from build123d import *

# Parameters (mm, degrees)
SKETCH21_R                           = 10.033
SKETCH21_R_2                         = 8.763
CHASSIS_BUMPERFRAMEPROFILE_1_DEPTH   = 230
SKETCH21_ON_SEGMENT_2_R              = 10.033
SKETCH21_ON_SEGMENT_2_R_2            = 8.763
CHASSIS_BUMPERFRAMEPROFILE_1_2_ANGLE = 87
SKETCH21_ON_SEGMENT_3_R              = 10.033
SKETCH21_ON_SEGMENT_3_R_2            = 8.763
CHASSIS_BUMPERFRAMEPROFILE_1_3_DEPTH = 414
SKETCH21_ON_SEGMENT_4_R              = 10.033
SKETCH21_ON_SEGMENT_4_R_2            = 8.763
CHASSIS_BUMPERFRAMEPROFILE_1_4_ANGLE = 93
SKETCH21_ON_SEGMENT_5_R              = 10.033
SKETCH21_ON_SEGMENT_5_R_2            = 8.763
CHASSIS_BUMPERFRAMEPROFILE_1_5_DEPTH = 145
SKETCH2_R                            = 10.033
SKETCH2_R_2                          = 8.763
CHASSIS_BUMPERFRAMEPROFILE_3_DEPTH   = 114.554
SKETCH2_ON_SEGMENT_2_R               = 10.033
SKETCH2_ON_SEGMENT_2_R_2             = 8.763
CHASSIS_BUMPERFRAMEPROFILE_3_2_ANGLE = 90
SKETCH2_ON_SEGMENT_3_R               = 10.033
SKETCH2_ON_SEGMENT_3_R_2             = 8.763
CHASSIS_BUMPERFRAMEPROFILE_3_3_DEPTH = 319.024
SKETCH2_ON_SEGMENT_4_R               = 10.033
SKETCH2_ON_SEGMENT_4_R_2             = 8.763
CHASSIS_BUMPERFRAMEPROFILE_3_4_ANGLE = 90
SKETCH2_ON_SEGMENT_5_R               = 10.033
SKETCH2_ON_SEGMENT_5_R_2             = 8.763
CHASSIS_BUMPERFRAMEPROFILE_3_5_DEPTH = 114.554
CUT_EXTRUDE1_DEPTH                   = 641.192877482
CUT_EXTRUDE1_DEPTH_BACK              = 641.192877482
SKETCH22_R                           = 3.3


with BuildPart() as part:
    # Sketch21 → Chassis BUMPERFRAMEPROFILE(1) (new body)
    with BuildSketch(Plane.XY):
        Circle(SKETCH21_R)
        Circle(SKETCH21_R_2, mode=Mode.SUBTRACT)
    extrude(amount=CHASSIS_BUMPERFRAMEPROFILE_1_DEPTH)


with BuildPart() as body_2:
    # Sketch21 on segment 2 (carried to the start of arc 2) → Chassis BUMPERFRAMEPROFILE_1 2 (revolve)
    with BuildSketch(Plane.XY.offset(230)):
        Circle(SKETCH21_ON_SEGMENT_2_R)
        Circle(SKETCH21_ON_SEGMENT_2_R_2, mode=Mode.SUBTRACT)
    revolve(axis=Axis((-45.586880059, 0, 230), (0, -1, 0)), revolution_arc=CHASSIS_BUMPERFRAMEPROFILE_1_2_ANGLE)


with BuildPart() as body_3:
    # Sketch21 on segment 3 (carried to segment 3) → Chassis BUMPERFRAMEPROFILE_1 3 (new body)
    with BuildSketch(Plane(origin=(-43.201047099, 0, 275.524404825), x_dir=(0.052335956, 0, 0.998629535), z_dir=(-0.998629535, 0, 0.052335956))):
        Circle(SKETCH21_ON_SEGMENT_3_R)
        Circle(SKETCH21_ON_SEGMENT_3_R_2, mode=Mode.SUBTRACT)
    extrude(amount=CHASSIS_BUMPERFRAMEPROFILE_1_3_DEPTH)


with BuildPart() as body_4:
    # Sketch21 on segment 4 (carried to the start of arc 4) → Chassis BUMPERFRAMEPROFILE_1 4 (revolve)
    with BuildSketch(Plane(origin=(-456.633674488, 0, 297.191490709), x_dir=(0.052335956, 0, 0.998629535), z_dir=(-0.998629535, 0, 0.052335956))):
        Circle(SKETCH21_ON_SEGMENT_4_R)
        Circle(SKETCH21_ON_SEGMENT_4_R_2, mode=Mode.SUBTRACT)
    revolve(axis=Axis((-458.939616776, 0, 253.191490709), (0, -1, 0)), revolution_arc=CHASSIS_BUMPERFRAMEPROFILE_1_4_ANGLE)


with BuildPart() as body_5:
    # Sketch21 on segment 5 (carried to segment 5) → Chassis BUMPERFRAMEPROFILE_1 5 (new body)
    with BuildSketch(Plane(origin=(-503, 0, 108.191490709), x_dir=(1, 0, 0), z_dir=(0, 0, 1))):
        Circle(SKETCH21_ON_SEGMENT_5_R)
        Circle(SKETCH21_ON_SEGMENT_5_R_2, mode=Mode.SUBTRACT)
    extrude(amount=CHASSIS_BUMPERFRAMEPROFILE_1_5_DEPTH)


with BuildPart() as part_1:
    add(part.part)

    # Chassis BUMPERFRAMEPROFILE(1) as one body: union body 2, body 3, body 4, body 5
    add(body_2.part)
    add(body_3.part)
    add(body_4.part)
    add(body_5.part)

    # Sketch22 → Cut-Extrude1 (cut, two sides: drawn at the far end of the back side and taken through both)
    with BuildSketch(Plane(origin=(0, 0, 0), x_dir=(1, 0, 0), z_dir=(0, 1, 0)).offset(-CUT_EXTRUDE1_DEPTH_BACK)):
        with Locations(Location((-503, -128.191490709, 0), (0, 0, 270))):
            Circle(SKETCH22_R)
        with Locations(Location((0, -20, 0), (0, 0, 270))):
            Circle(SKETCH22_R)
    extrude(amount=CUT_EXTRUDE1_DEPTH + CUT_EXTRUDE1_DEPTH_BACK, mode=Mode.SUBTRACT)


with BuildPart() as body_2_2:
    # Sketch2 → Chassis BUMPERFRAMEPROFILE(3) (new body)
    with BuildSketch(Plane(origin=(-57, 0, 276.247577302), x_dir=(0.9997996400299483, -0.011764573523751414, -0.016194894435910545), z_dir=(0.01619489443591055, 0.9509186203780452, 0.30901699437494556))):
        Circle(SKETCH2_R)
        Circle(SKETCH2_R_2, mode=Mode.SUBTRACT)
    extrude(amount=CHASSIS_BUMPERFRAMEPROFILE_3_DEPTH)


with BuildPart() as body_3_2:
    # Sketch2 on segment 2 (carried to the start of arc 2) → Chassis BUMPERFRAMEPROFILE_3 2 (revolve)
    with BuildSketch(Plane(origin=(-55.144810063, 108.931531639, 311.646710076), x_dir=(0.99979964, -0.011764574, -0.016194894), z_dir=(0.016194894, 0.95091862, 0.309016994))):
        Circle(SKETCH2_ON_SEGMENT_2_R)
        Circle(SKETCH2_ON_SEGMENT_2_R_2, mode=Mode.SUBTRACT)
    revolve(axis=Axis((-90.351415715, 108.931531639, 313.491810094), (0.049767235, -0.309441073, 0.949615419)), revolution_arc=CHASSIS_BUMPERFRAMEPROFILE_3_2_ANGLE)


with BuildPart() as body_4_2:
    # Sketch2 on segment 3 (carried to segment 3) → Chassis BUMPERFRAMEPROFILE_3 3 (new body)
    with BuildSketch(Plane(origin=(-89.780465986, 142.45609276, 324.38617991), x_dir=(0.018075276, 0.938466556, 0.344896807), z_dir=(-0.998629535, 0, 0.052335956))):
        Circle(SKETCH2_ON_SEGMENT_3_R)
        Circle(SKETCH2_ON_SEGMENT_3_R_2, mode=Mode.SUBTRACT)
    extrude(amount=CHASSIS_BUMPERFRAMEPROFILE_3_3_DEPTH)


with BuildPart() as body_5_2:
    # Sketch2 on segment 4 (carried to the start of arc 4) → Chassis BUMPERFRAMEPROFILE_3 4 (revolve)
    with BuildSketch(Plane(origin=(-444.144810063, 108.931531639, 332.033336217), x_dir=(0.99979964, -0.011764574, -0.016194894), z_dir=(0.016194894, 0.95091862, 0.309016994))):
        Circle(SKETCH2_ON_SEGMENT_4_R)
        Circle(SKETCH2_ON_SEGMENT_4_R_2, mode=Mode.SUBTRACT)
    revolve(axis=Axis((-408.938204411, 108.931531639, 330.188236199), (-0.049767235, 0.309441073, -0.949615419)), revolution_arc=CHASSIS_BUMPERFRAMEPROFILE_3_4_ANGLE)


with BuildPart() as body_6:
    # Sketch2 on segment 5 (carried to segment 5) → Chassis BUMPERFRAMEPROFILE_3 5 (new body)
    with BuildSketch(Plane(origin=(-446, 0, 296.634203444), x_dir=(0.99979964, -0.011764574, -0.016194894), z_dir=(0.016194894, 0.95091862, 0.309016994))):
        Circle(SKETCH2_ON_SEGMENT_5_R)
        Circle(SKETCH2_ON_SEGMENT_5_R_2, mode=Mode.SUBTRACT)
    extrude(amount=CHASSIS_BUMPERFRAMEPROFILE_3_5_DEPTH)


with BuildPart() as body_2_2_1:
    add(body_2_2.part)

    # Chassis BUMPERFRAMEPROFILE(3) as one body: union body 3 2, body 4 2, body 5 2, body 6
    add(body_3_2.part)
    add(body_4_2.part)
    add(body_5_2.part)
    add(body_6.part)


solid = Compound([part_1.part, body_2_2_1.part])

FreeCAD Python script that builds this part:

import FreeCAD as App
import Part
import Sketcher

V = App.Vector
Q = App.Units.Quantity

doc = App.newDocument("Part")
body = doc.addObject("PartDesign::Body", "Body")

# Sketch on XY plane
sketch1 = body.newObject("Sketcher::SketchObject", "Sketch")
sketch1.AttachmentSupport = (doc.getObject("XY_Plane"), [""])
sketch1.MapMode = "FlatFace"
sketch1.addGeometry(Part.Circle(V(0, 0, 0), V(0, 0, 1), 10), False)
sketch1.addGeometry(Part.Circle(V(0, 0, 0), V(0, 0, 1), 9), False)
sketch1.addConstraint(Sketcher.Constraint("Coincident", 0, 3, -1, 1))
sketch1.addConstraint(Sketcher.Constraint("Coincident", 1, 3, -1, 1))
sketch1.addConstraint(Sketcher.Constraint("Diameter", 0, Q("20.066 mm")))
sketch1.addConstraint(Sketcher.Constraint("Diameter", 1, Q("17.526 mm")))
pad1 = body.newObject("PartDesign::Pad", "Pad")
pad1.Profile = sketch1
pad1.Length = 230
body2 = doc.addObject("PartDesign::Body", "Body001")

# Sketch on XY plane
sketch2 = body2.newObject("Sketcher::SketchObject", "Sketch001")
sketch2.AttachmentSupport = (doc.getObject("XY_Plane001"), [""])
sketch2.MapMode = "FlatFace"
sketch2.AttachmentOffset = App.Placement(V(0, 0, 230), App.Rotation())
sketch2.addGeometry(Part.Circle(V(0, 0, 0), V(0, 0, 1), 10), False)
sketch2.addGeometry(Part.Circle(V(0, 0, 0), V(0, 0, 1), 9), False)
sketch2.addGeometry(Part.LineSegment(V(-46, 0, 0), V(-46, -10, 0)), True)  # axis
sketch2.addConstraint(Sketcher.Constraint("Vertical", 2))
sketch2.addConstraint(Sketcher.Constraint("Coincident", 0, 3, -1, 1))
sketch2.addConstraint(Sketcher.Constraint("Coincident", 1, 3, -1, 1))
sketch2.addConstraint(Sketcher.Constraint("PointOnObject", 2, 1, -1))
sketch2.addConstraint(Sketcher.Constraint("DistanceY", 2, 2, 2, 1, Q("10 mm")))
sketch2.addConstraint(Sketcher.Constraint("Diameter", 0, Q("20.066 mm")))
sketch2.addConstraint(Sketcher.Constraint("Diameter", 1, Q("17.526 mm")))
sketch2.addConstraint(Sketcher.Constraint("DistanceX", 2, 1, -1, 1, Q("45.58688 mm")))
revolution = body2.newObject("PartDesign::Revolution", "Revolution")
revolution.Profile = sketch2
revolution.ReferenceAxis = (sketch2, ["Axis0"])
revolution.Angle = 87
body3 = doc.addObject("PartDesign::Body", "Body002")

# Sketch on an angled plane
sketch3 = body3.newObject("Sketcher::SketchObject", "Sketch002")
sketch3.Placement = App.Placement(V(-43.201047, 0, 275.524405), App.Rotation(V(0.052335956, 0, 0.998629535), V(0, 1, 0), V(-0.998629535, 0, 0.052335956), "ZXY"))
sketch3.addGeometry(Part.Circle(V(0, 0, 0), V(0, 0, 1), 10), False)
sketch3.addGeometry(Part.Circle(V(0, 0, 0), V(0, 0, 1), 9), False)
sketch3.addConstraint(Sketcher.Constraint("Coincident", 0, 3, -1, 1))
sketch3.addConstraint(Sketcher.Constraint("Coincident", 1, 3, -1, 1))
sketch3.addConstraint(Sketcher.Constraint("Diameter", 0, Q("20.066 mm")))
sketch3.addConstraint(Sketcher.Constraint("Diameter", 1, Q("17.526 mm")))
pad2 = body3.newObject("PartDesign::Pad", "Pad001")
pad2.Profile = sketch3
pad2.Length = 414
body4 = doc.addObject("PartDesign::Body", "Body003")

# Sketch on an angled plane
sketch4 = body4.newObject("Sketcher::SketchObject", "Sketch003")
sketch4.Placement = App.Placement(V(-456.633674, 0, 297.191491), App.Rotation(V(0.052335956, 0, 0.998629535), V(0, 1, 0), V(-0.998629535, 0, 0.052335956), "ZXY"))
sketch4.addGeometry(Part.Circle(V(0, 0, 0), V(0, 0, 1), 10), False)
sketch4.addGeometry(Part.Circle(V(0, 0, 0), V(0, 0, 1), 9), False)
sketch4.addGeometry(Part.LineSegment(V(-44, 0, 0), V(-44, -10, 0)), True)  # axis
sketch4.addConstraint(Sketcher.Constraint("Vertical", 2))
sketch4.addConstraint(Sketcher.Constraint("Coincident", 0, 3, -1, 1))
sketch4.addConstraint(Sketcher.Constraint("Coincident", 1, 3, -1, 1))
sketch4.addConstraint(Sketcher.Constraint("PointOnObject", 2, 1, -1))
sketch4.addConstraint(Sketcher.Constraint("DistanceY", 2, 2, 2, 1, Q("10 mm")))
sketch4.addConstraint(Sketcher.Constraint("Diameter", 0, Q("20.066 mm")))
sketch4.addConstraint(Sketcher.Constraint("Diameter", 1, Q("17.526 mm")))
sketch4.addConstraint(Sketcher.Constraint("DistanceX", 2, 1, -1, 1, Q("44.060383 mm")))
revolution2 = body4.newObject("PartDesign::Revolution", "Revolution001")
revolution2.Profile = sketch4
revolution2.ReferenceAxis = (sketch4, ["Axis0"])
revolution2.Angle = 93
body5 = doc.addObject("PartDesign::Body", "Body004")

# Sketch on XY plane
sketch5 = body5.newObject("Sketcher::SketchObject", "Sketch004")
sketch5.AttachmentSupport = (doc.getObject("XY_Plane004"), [""])
sketch5.MapMode = "FlatFace"
sketch5.AttachmentOffset = App.Placement(V(0, 0, 108.191491), App.Rotation())
sketch5.addGeometry(Part.Circle(V(-503, 0, 0), V(0, 0, 1), 10), False)
sketch5.addGeometry(Part.Circle(V(-503, 0, 0), V(0, 0, 1), 9), False)
sketch5.addConstraint(Sketcher.Constraint("Coincident", 1, 3, 0, 3))
sketch5.addConstraint(Sketcher.Constraint("PointOnObject", 0, 3, -1))
sketch5.addConstraint(Sketcher.Constraint("Diameter", 0, Q("20.066 mm")))
sketch5.addConstraint(Sketcher.Constraint("Diameter", 1, Q("17.526 mm")))
sketch5.addConstraint(Sketcher.Constraint("DistanceX", 0, 3, -1, 1, Q("503 mm")))
pad3 = body5.newObject("PartDesign::Pad", "Pad002")
pad3.Profile = sketch5
pad3.Length = 145
doc.recompute()

boolean = body.newObject("PartDesign::Boolean", "Boolean")
boolean.Type = "Fuse"
boolean.addObjects([body2])
doc.recompute()

boolean2 = body.newObject("PartDesign::Boolean", "Boolean001")
boolean2.Type = "Fuse"
boolean2.addObjects([body3])
doc.recompute()

boolean3 = body.newObject("PartDesign::Boolean", "Boolean002")
boolean3.Type = "Fuse"
boolean3.addObjects([body4])
doc.recompute()

boolean4 = body.newObject("PartDesign::Boolean", "Boolean003")
boolean4.Type = "Fuse"
boolean4.addObjects([body5])

# Sketch on XZ plane
sketch6 = body.newObject("Sketcher::SketchObject", "Sketch005")
sketch6.AttachmentSupport = (doc.getObject("XZ_Plane"), [""])
sketch6.MapMode = "FlatFace"
sketch6.addGeometry(Part.Circle(V(-503, 128.2, 0), V(0, 0, 1), 3.3), False)
sketch6.addGeometry(Part.Circle(V(0, 20, 0), V(0, 0, 1), 3.3), False)
sketch6.addConstraint(Sketcher.Constraint("Equal", 0, 1))
sketch6.addConstraint(Sketcher.Constraint("PointOnObject", 1, 3, -2))
sketch6.addConstraint(Sketcher.Constraint("Diameter", 0, Q("6.6 mm")))
sketch6.addConstraint(Sketcher.Constraint("DistanceX", 0, 3, -1, 1, Q("503 mm")))
sketch6.addConstraint(Sketcher.Constraint("DistanceY", -1, 1, 1, 3, Q("20 mm")))
sketch6.addConstraint(Sketcher.Constraint("DistanceY", -1, 1, 0, 3, Q("128.191491 mm")))
pocket1 = body.newObject("PartDesign::Pocket", "Pocket")
pocket1.Profile = sketch6
pocket1.Type = "ThroughAll"
pocket1.Midplane = True
body6 = doc.addObject("PartDesign::Body", "Body005")

# Sketch on an angled plane
sketch7 = body6.newObject("Sketcher::SketchObject", "Sketch006")
sketch7.Placement = App.Placement(V(-57, 0, 276.247577), App.Rotation(V(0.99979964, -0.011764574, -0.016194894), V(-0.011764573, 0.309217354, -0.95091862), V(0.016194894, 0.95091862, 0.309016994), "ZXY"))
sketch7.addGeometry(Part.Circle(V(0, 0, 0), V(0, 0, 1), 10), False)
sketch7.addGeometry(Part.Circle(V(0, 0, 0), V(0, 0, 1), 9), False)
sketch7.addConstraint(Sketcher.Constraint("Coincident", 0, 3, -1, 1))
sketch7.addConstraint(Sketcher.Constraint("Coincident", 1, 3, -1, 1))
sketch7.addConstraint(Sketcher.Constraint("Diameter", 0, Q("20.066 mm")))
sketch7.addConstraint(Sketcher.Constraint("Diameter", 1, Q("17.526 mm")))
pad4 = body6.newObject("PartDesign::Pad", "Pad003")
pad4.Profile = sketch7
pad4.Length = 114.554
body7 = doc.addObject("PartDesign::Body", "Body006")

# Sketch on an angled plane
sketch8 = body7.newObject("Sketcher::SketchObject", "Sketch007")
sketch8.Placement = App.Placement(V(-55.14481, 108.931532, 311.64671), App.Rotation(V(0.99979964, -0.011764573, -0.016194894), V(-0.011764573, 0.309217354, -0.95091862), V(0.016194894, 0.95091862, 0.309016994), "ZXY"))
sketch8.addGeometry(Part.Circle(V(0, 0, 0), V(0, 0, 1), 10.033), False)
sketch8.addGeometry(Part.Circle(V(0, 0, 0), V(0, 0, 1), 8.763), False)
sketch8.addGeometry(Part.LineSegment(V(-35.229433, -1.340349, 0), V(-34.849245, -11.33312, 0)), True)  # axis
sketch8.addConstraint(Sketcher.Constraint("Coincident", 0, 3, -1, 1))
sketch8.addConstraint(Sketcher.Constraint("Coincident", 1, 3, -1, 1))
sketch8.addConstraint(Sketcher.Constraint("Distance", 2, Q("10 mm")))
sketch8.addConstraint(Sketcher.Constraint("Diameter", 0, Q("20.066 mm")))
sketch8.addConstraint(Sketcher.Constraint("Diameter", 1, Q("17.526 mm")))
sketch8.addConstraint(Sketcher.Constraint("DistanceY", 2, 1, -1, 1, Q("1.340349 mm")))
sketch8.addConstraint(Sketcher.Constraint("DistanceY", 2, 2, -1, 1, Q("11.33312 mm")))
sketch8.addConstraint(Sketcher.Constraint("DistanceX", 2, 1, -1, 1, Q("35.229433 mm")))
revolution3 = body7.newObject("PartDesign::Revolution", "Revolution002")
revolution3.Profile = sketch8
revolution3.ReferenceAxis = (sketch8, ["Axis0"])
revolution3.Angle = 90
body8 = doc.addObject("PartDesign::Body", "Body007")

# Sketch on an angled plane
sketch9 = body8.newObject("Sketcher::SketchObject", "Sketch008")
sketch9.Placement = App.Placement(V(-89.780466, 142.456093, 324.38618), App.Rotation(V(0.018075276, 0.938466556, 0.344896807), V(-0.049115544, 0.345370125, -0.93718042), V(-0.998629535, 0, 0.052335956), "ZXY"))
sketch9.addGeometry(Part.Circle(V(0, 0, 0), V(0, 0, 1), 10), False)
sketch9.addGeometry(Part.Circle(V(0, 0, 0), V(0, 0, 1), 9), False)
sketch9.addConstraint(Sketcher.Constraint("Coincident", 0, 3, -1, 1))
sketch9.addConstraint(Sketcher.Constraint("Coincident", 1, 3, -1, 1))
sketch9.addConstraint(Sketcher.Constraint("Diameter", 0, Q("20.066 mm")))
sketch9.addConstraint(Sketcher.Constraint("Diameter", 1, Q("17.526 mm")))
pad5 = body8.newObject("PartDesign::Pad", "Pad004")
pad5.Profile = sketch9
pad5.Length = 319.024
body9 = doc.addObject("PartDesign::Body", "Body008")

# Sketch on an angled plane
sketch10 = body9.newObject("Sketcher::SketchObject", "Sketch009")
sketch10.Placement = App.Placement(V(-444.14481, 108.931532, 332.033336), App.Rotation(V(0.99979964, -0.011764573, -0.016194894), V(-0.011764573, 0.309217354, -0.95091862), V(0.016194894, 0.95091862, 0.309016994), "ZXY"))
sketch10.addGeometry(Part.Circle(V(0, 0, 0), V(0, 0, 1), 10.033), False)
sketch10.addGeometry(Part.Circle(V(0, 0, 0), V(0, 0, 1), 8.763), False)
sketch10.addGeometry(Part.LineSegment(V(35.229433, 1.340349, 0), V(34.849245, 11.33312, 0)), True)  # axis
sketch10.addConstraint(Sketcher.Constraint("Coincident", 0, 3, -1, 1))
sketch10.addConstraint(Sketcher.Constraint("Coincident", 1, 3, -1, 1))
sketch10.addConstraint(Sketcher.Constraint("Distance", 2, Q("10 mm")))
sketch10.addConstraint(Sketcher.Constraint("Diameter", 0, Q("20.066 mm")))
sketch10.addConstraint(Sketcher.Constraint("Diameter", 1, Q("17.526 mm")))
sketch10.addConstraint(Sketcher.Constraint("DistanceY", -1, 1, 2, 1, Q("1.340349 mm")))
sketch10.addConstraint(Sketcher.Constraint("DistanceY", -1, 1, 2, 2, Q("11.33312 mm")))
sketch10.addConstraint(Sketcher.Constraint("DistanceX", -1, 1, 2, 1, Q("35.229433 mm")))
revolution4 = body9.newObject("PartDesign::Revolution", "Revolution003")
revolution4.Profile = sketch10
revolution4.ReferenceAxis = (sketch10, ["Axis0"])
revolution4.Angle = 90
body10 = doc.addObject("PartDesign::Body", "Body009")

# Sketch on an angled plane
sketch11 = body10.newObject("Sketcher::SketchObject", "Sketch010")
sketch11.Placement = App.Placement(V(-446, 0, 296.634203), App.Rotation(V(0.99979964, -0.011764573, -0.016194894), V(-0.011764573, 0.309217354, -0.95091862), V(0.016194894, 0.95091862, 0.309016994), "ZXY"))
sketch11.addGeometry(Part.Circle(V(0, 0, 0), V(0, 0, 1), 10), False)
sketch11.addGeometry(Part.Circle(V(0, 0, 0), V(0, 0, 1), 9), False)
sketch11.addConstraint(Sketcher.Constraint("Coincident", 0, 3, -1, 1))
sketch11.addConstraint(Sketcher.Constraint("Coincident", 1, 3, -1, 1))
sketch11.addConstraint(Sketcher.Constraint("Diameter", 0, Q("20.066 mm")))
sketch11.addConstraint(Sketcher.Constraint("Diameter", 1, Q("17.526 mm")))
pad6 = body10.newObject("PartDesign::Pad", "Pad005")
pad6.Profile = sketch11
pad6.Length = 114.554
doc.recompute()

boolean5 = body6.newObject("PartDesign::Boolean", "Boolean004")
boolean5.Type = "Fuse"
boolean5.addObjects([body7])
doc.recompute()

boolean6 = body6.newObject("PartDesign::Boolean", "Boolean005")
boolean6.Type = "Fuse"
boolean6.addObjects([body8])
doc.recompute()

boolean7 = body6.newObject("PartDesign::Boolean", "Boolean006")
boolean7.Type = "Fuse"
boolean7.addObjects([body9])
doc.recompute()

boolean8 = body6.newObject("PartDesign::Boolean", "Boolean007")
boolean8.Type = "Fuse"
boolean8.addObjects([body10])

doc.recompute()
